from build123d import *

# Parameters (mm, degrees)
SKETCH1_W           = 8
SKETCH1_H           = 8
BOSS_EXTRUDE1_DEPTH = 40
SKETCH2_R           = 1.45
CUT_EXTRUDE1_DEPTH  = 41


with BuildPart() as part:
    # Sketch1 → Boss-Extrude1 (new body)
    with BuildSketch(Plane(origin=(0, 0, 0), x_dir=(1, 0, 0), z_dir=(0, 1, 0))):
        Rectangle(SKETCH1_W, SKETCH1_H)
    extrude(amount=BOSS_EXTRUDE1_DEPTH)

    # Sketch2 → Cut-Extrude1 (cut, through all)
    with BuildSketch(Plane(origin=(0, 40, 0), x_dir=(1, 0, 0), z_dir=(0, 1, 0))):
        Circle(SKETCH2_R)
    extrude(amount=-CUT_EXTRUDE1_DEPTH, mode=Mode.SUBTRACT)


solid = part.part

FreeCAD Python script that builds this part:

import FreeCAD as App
import Part
import Sketcher

V = App.Vector

doc = App.newDocument("Part")
body = doc.addObject("PartDesign::Body", "Body")

# Sketch on XZ plane
sketch1 = doc.addObject("Sketcher::SketchObject", "Sketch")
body.addObject(sketch1)
sketch1.AttachmentSupport = (doc.XZ_Plane, [""])
sketch1.MapMode = "FlatFace"
sketch1.addGeometry(Part.LineSegment(V(-4, -4, 0), V(-4, 4, 0)), False)
sketch1.addGeometry(Part.LineSegment(V(-4, 4, 0), V(4, 4, 0)), False)
sketch1.addGeometry(Part.LineSegment(V(4, 4, 0), V(4, -4, 0)), False)
sketch1.addGeometry(Part.LineSegment(V(4, -4, 0), V(-4, -4, 0)), False)
sketch1.addConstraint(Sketcher.Constraint("Coincident", 0, 2, 1, 1))
sketch1.addConstraint(Sketcher.Constraint("Coincident", 1, 2, 2, 1))
sketch1.addConstraint(Sketcher.Constraint("Coincident", 2, 2, 3, 1))
sketch1.addConstraint(Sketcher.Constraint("Coincident", 3, 2, 0, 1))
sketch1.addConstraint(Sketcher.Constraint("Vertical", 0))
sketch1.addConstraint(Sketcher.Constraint("Horizontal", 1))
sketch1.addConstraint(Sketcher.Constraint("Vertical", 2))
sketch1.addConstraint(Sketcher.Constraint("Horizontal", 3))
sketch1.addConstraint(Sketcher.Constraint("Symmetric", 0, 2, 2, 2, -1, 1))
sketch1.addConstraint(Sketcher.Constraint("Equal", 3, 0))
sketch1.addConstraint(Sketcher.Constraint("DistanceX", 1, 1, 1, 2, 8.0))
pad1 = doc.addObject("PartDesign::Pad", "Pad")
body.addObject(pad1)
pad1.Profile = sketch1
pad1.Length = 40
pad1.Reversed = True

# Sketch on XZ plane
sketch2 = doc.addObject("Sketcher::SketchObject", "Sketch001")
body.addObject(sketch2)
sketch2.AttachmentSupport = (doc.XZ_Plane, [""])
sketch2.MapMode = "FlatFace"
sketch2.AttachmentOffset = App.Placement(V(0, 0, -40), App.Rotation())
sketch2.addGeometry(Part.Circle(V(0, 0, 0), V(0, 0, 1), 1.4), False)
sketch2.addConstraint(Sketcher.Constraint("Coincident", 0, 3, -1, 1))
sketch2.addConstraint(Sketcher.Constraint("Diameter", 0, 2.9))
pocket1 = doc.addObject("PartDesign::Pocket", "Pocket")
body.addObject(pocket1)
pocket1.Profile = sketch2
pocket1.Type = "ThroughAll"
pocket1.Reversed = True

doc.recompute()
